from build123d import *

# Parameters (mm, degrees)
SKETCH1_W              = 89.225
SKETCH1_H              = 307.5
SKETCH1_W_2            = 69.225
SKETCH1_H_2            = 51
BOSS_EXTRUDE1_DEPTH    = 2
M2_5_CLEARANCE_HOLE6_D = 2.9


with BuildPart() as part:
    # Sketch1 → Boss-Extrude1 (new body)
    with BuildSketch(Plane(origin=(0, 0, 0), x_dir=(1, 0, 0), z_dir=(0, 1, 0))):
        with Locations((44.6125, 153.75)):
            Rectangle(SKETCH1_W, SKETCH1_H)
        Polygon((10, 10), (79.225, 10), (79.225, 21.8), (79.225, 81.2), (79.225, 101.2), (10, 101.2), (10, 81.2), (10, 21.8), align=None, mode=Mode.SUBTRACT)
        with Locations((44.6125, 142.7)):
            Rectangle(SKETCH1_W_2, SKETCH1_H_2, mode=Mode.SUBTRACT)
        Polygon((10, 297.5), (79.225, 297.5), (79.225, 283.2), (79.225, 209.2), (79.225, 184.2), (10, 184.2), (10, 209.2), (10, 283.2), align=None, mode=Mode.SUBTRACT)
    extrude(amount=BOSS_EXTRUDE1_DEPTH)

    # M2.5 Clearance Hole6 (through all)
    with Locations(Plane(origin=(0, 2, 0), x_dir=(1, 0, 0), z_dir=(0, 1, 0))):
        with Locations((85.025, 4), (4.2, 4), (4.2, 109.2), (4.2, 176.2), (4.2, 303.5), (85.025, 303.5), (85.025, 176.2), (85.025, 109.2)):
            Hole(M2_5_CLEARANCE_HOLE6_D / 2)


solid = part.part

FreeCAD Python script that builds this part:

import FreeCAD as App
import Part
import Sketcher
Q = App.Units.Quantity

doc = App.newDocument("Part")
body = doc.addObject("PartDesign::Body", "Body")

# Sketch on XZ plane
sketch1 = body.newObject("Sketcher::SketchObject", "Sketch")
sketch1.AttachmentSupport = (doc.getObject("XZ_Plane"), [""])
sketch1.MapMode = "FlatFace"
sketch1.addGeometry([
    Part.LineSegment(App.Vector(0, -308, 0), App.Vector(0, 0, 0)),  # 0
    Part.LineSegment(App.Vector(0, 0, 0), App.Vector(89, 0, 0)),  # 1
    Part.LineSegment(App.Vector(89, 0, 0), App.Vector(89, -308, 0)),  # 2
    Part.LineSegment(App.Vector(89, -308, 0), App.Vector(0, -308, 0)),  # 3
    Part.LineSegment(App.Vector(79, -10, 0), App.Vector(10, -10, 0)),  # 4
    Part.LineSegment(App.Vector(10, -10, 0), App.Vector(10, -101, 0)),  # 5
    Part.LineSegment(App.Vector(10, -101, 0), App.Vector(79, -101, 0)),  # 6
    Part.LineSegment(App.Vector(79, -101, 0), App.Vector(79, -10, 0)),  # 7
    Part.LineSegment(App.Vector(79, -117, 0), App.Vector(10, -117, 0)),  # 8
    Part.LineSegment(App.Vector(10, -117, 0), App.Vector(10, -168, 0)),  # 9
    Part.LineSegment(App.Vector(10, -168, 0), App.Vector(79, -168, 0)),  # 10
    Part.LineSegment(App.Vector(79, -168, 0), App.Vector(79, -117, 0)),  # 11
    Part.LineSegment(App.Vector(10, -184, 0), App.Vector(10, -298, 0)),  # 12
    Part.LineSegment(App.Vector(10, -298, 0), App.Vector(79, -298, 0)),  # 13
    Part.LineSegment(App.Vector(79, -298, 0), App.Vector(79, -184, 0)),  # 14
    Part.LineSegment(App.Vector(79, -184, 0), App.Vector(10, -184, 0)),  # 15
], False)
sketch1.addConstraint([
    Sketcher.Constraint("Coincident", 0, 2, 1, 1),
    Sketcher.Constraint("Coincident", 1, 2, 2, 1),
    Sketcher.Constraint("Coincident", 2, 2, 3, 1),
    Sketcher.Constraint("Coincident", 3, 2, 0, 1),
    Sketcher.Constraint("Coincident", 4, 2, 5, 1),
    Sketcher.Constraint("Coincident", 5, 2, 6, 1),
    Sketcher.Constraint("Coincident", 6, 2, 7, 1),
    Sketcher.Constraint("Coincident", 7, 2, 4, 1),
    Sketcher.Constraint("Coincident", 8, 2, 9, 1),
    Sketcher.Constraint("Coincident", 9, 2, 10, 1),
    Sketcher.Constraint("Coincident", 10, 2, 11, 1),
    Sketcher.Constraint("Coincident", 11, 2, 8, 1),
    Sketcher.Constraint("Coincident", 12, 2, 13, 1),
    Sketcher.Constraint("Coincident", 13, 2, 14, 1),
    Sketcher.Constraint("Coincident", 14, 2, 15, 1),
    Sketcher.Constraint("Coincident", 15, 2, 12, 1),
    Sketcher.Constraint("Vertical", 0),
    Sketcher.Constraint("Horizontal", 1),
    Sketcher.Constraint("Vertical", 2),
    Sketcher.Constraint("Horizontal", 3),
    Sketcher.Constraint("Horizontal", 4),
    Sketcher.Constraint("Vertical", 5),
    Sketcher.Constraint("Horizontal", 6),
    Sketcher.Constraint("Vertical", 7),
    Sketcher.Constraint("Horizontal", 8),
    Sketcher.Constraint("Vertical", 9),
    Sketcher.Constraint("Horizontal", 10),
    Sketcher.Constraint("Vertical", 11),
    Sketcher.Constraint("Vertical", 12),
    Sketcher.Constraint("Horizontal", 13),
    Sketcher.Constraint("Vertical", 14),
    Sketcher.Constraint("Horizontal", 15),
    Sketcher.Constraint("Coincident", 0, 2, -1, 1),
    Sketcher.Constraint("Vertical", 5, 2, 8, 2),
    Sketcher.Constraint("Vertical", 7, 2, 10, 2),
    Sketcher.Constraint("Vertical", 9, 2, 12, 2),
    Sketcher.Constraint("Vertical", 11, 2, 13, 2),
    Sketcher.Constraint("DistanceY", 9, 2, 9, 1, Q("51 mm")),
    Sketcher.Constraint("DistanceY", 0, 1, 0, 2, Q("307.5 mm")),
    Sketcher.Constraint("DistanceY", 5, 2, 5, 1, Q("91.2 mm")),
    Sketcher.Constraint("DistanceY", 12, 2, 12, 1, Q("113.3 mm")),
    Sketcher.Constraint("DistanceX", -1, 1, 4, 2, Q("10 mm")),
    Sketcher.Constraint("DistanceY", 4, 2, -1, 1, Q("10 mm")),
    Sketcher.Constraint("DistanceX", 6, 2, 1, 2, Q("10 mm")),
    Sketcher.Constraint("DistanceY", 8, 2, 5, 2, Q("16 mm")),
    Sketcher.Constraint("DistanceY", 3, 2, 12, 2, Q("10 mm")),
    Sketcher.Constraint("DistanceX", 1, 1, 1, 2, Q("89.225 mm")),
])
pad1 = body.newObject("PartDesign::Pad", "Pad")
pad1.Profile = sketch1
pad1.Length = 2
pad1.Reversed = True

# Sketch on XZ plane
sketch2 = body.newObject("Sketcher::SketchObject", "Sketch001")
sketch2.AttachmentSupport = (doc.getObject("XZ_Plane"), [""])
sketch2.MapMode = "FlatFace"
sketch2.AttachmentOffset = App.Placement(App.Vector(0, 0, -2), App.Rotation())
sketch2.addGeometry([
    Part.Circle(App.Vector(85, -4, 0), App.Vector(0, 0, 1), 1.4),  # 0
    Part.Circle(App.Vector(4.2, -4, 0), App.Vector(0, 0, 1), 1.4),  # 1
    Part.Circle(App.Vector(4.2, -109.2, 0), App.Vector(0, 0, 1), 1.4),  # 2
    Part.Circle(App.Vector(4.2, -176.2, 0), App.Vector(0, 0, 1), 1.4),  # 3
    Part.Circle(App.Vector(4.2, -303.5, 0), App.Vector(0, 0, 1), 1.4),  # 4
    Part.Circle(App.Vector(85, -303.5, 0), App.Vector(0, 0, 1), 1.4),  # 5
    Part.Circle(App.Vector(85, -176.2, 0), App.Vector(0, 0, 1), 1.4),  # 6
    Part.Circle(App.Vector(85, -109.2, 0), App.Vector(0, 0, 1), 1.4),  # 7
], False)
sketch2.addConstraint([
    Sketcher.Constraint("Equal", 0, 1),
    Sketcher.Constraint("Equal", 1, 2),
    Sketcher.Constraint("Equal", 2, 3),
    Sketcher.Constraint("Equal", 3, 4),
    Sketcher.Constraint("Equal", 4, 5),
    Sketcher.Constraint("Equal", 5, 6),
    Sketcher.Constraint("Equal", 6, 7),
    Sketcher.Constraint("Horizontal", 0, 3, 1, 3),
    Sketcher.Constraint("Horizontal", 4, 3, 5, 3),
    Sketcher.Constraint("Horizontal", 3, 3, 6, 3),
    Sketcher.Constraint("Horizontal", 2, 3, 7, 3),
    Sketcher.Constraint("Vertical", 1, 3, 2, 3),
    Sketcher.Constraint("Vertical", 2, 3, 3, 3),
    Sketcher.Constraint("Vertical", 3, 3, 4, 3),
    Sketcher.Constraint("Vertical", 0, 3, 5, 3),
    Sketcher.Constraint("Vertical", 5, 3, 6, 3),
    Sketcher.Constraint("Vertical", 6, 3, 7, 3),
    Sketcher.Constraint("Diameter", 0, Q("2.9 mm")),
    Sketcher.Constraint("DistanceY", 0, 3, -1, 1, Q("4 mm")),
    Sketcher.Constraint("DistanceY", 3, 3, 2, 3, Q("67 mm")),
    Sketcher.Constraint("DistanceX", -1, 1, 1, 3, Q("4.2 mm")),
    Sketcher.Constraint("DistanceY", 2, 3, -1, 1, Q("109.2 mm")),
    Sketcher.Constraint("DistanceY", 4, 3, -1, 1, Q("303.5 mm")),
    Sketcher.Constraint("DistanceX", -1, 1, 0, 3, Q("85.025 mm")),
])
doc.recompute()
hole = body.newObject("PartDesign::Hole", "Hole")
hole.Profile = sketch2
hole.ThreadType = "None"
hole.Diameter = 2.9
hole.DepthType = "ThroughAll"
hole.Reversed = True

doc.recompute()
